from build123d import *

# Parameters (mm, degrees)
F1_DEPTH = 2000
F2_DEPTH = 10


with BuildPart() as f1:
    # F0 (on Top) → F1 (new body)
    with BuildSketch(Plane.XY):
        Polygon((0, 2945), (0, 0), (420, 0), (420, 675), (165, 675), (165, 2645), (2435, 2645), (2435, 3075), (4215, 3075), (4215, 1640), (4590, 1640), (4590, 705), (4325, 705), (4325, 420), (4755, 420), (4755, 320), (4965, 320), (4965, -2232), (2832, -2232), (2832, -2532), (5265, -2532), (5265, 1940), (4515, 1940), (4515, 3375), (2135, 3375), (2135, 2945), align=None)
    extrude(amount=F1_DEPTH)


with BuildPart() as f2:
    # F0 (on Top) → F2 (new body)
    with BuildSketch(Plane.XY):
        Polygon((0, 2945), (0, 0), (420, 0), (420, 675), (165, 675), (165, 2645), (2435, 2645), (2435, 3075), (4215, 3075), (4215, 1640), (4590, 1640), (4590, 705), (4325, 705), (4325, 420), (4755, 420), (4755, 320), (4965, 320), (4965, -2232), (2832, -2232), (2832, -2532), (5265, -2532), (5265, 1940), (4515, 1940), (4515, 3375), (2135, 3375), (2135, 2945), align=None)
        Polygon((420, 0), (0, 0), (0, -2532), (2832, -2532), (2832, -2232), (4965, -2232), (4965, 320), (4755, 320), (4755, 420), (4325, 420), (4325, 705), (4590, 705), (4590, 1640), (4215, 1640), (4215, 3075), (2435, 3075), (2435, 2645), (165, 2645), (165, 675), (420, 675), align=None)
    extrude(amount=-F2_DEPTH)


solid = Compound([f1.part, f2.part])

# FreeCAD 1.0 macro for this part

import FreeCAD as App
import Part
import Sketcher
from FreeCAD import Vector
Q = App.Units.Quantity


def add_polygon(sketch, points):
    """Adds a closed chain of lines whose ends are joined by coincident constraints."""
    first, n = sketch.GeometryCount, len(points)
    for a, b in zip(points, points[1:] + points[:1]):
        sketch.addGeometry(Part.LineSegment(App.Vector(*a, 0), App.Vector(*b, 0)), False)
    for i in range(n):
        sketch.addConstraint(Sketcher.Constraint("Coincident", first + i, 2, first + (i + 1) % n, 1))

doc = App.newDocument("Part")
params = doc.addObject("Spreadsheet::Sheet", "Params")
for row, (alias, value) in enumerate([
    ("sketch1_width", "420 mm"),
    ("sketch1_width2", "255 mm"),
    ("sketch1_width3", "2270 mm"),
    ("sketch1_width4", "1780 mm"),
    ("sketch1_width5", "375 mm"),
    ("pad1_length", "2000 mm"),
    ("sketch2_width", "5265 mm"),
    ("sketch2_width2", "750 mm"),
    ("sketch2_width3", "2380 mm"),
    ("sketch2_height", "5477 mm"),
    ("sketch2_height2", "4472 mm"),
    ("pad2_length", "10 mm"),
], start=1):
    params.set(f"A{row}", alias)
    params.set(f"B{row}", "=" + value)
    params.setAlias(f"B{row}", alias)

body = doc.addObject("PartDesign::Body", "Body")

# Sketch on XY plane
sketch1 = body.newObject("Sketcher::SketchObject", "Sketch")
sketch1.AttachmentSupport = (doc.getObject("XY_Plane"), [""])
sketch1.MapMode = "FlatFace"
add_polygon(sketch1, [(0, 2945), (0, 0), (420, 0), (420, 675), (165, 675), (165, 2645), (2435, 2645), (2435, 3075), (4215, 3075), (4215, 1640), (4590, 1640), (4590, 705), (4325, 705), (4325, 420), (4755, 420), (4755, 320), (4965, 320), (4965, -2232), (2832, -2232), (2832, -2532), (5265, -2532), (5265, 1940), (4515, 1940), (4515, 3375), (2135, 3375), (2135, 2945)])  # lines 0-25
sketch1.addConstraint(Sketcher.Constraint("Vertical", 0))
sketch1.addConstraint(Sketcher.Constraint("Horizontal", 1))
sketch1.addConstraint(Sketcher.Constraint("Vertical", 2))
sketch1.addConstraint(Sketcher.Constraint("Horizontal", 3))
sketch1.addConstraint(Sketcher.Constraint("Vertical", 4))
sketch1.addConstraint(Sketcher.Constraint("Horizontal", 5))
sketch1.addConstraint(Sketcher.Constraint("Vertical", 6))
sketch1.addConstraint(Sketcher.Constraint("Horizontal", 7))
sketch1.addConstraint(Sketcher.Constraint("Vertical", 8))
sketch1.addConstraint(Sketcher.Constraint("Horizontal", 9))
sketch1.addConstraint(Sketcher.Constraint("Vertical", 10))
sketch1.addConstraint(Sketcher.Constraint("Horizontal", 11))
sketch1.addConstraint(Sketcher.Constraint("Vertical", 12))
sketch1.addConstraint(Sketcher.Constraint("Horizontal", 13))
sketch1.addConstraint(Sketcher.Constraint("Vertical", 14))
sketch1.addConstraint(Sketcher.Constraint("Horizontal", 15))
sketch1.addConstraint(Sketcher.Constraint("Vertical", 16))
sketch1.addConstraint(Sketcher.Constraint("Horizontal", 17))
sketch1.addConstraint(Sketcher.Constraint("Vertical", 18))
sketch1.addConstraint(Sketcher.Constraint("Horizontal", 19))
sketch1.addConstraint(Sketcher.Constraint("Vertical", 20))
sketch1.addConstraint(Sketcher.Constraint("Horizontal", 21))
sketch1.addConstraint(Sketcher.Constraint("Vertical", 22))
sketch1.addConstraint(Sketcher.Constraint("Horizontal", 23))
sketch1.addConstraint(Sketcher.Constraint("Vertical", 24))
sketch1.addConstraint(Sketcher.Constraint("Horizontal", 25))
sketch1.addConstraint(Sketcher.Constraint("Coincident", 0, 2, -1, 1))
sketch1.addConstraint(Sketcher.Constraint("Equal", 13, 6))
sketch1.addConstraint(Sketcher.Constraint("Equal", 8, 22))
sketch1.addConstraint(Sketcher.Constraint("Equal", 6, 24))
sketch1.addConstraint(Sketcher.Constraint("DistanceX", 1, 1, 1, 2, Q("420 mm")))
sketch1.addConstraint(Sketcher.Constraint("DistanceX", 3, 2, 3, 1, Q("255 mm")))
sketch1.addConstraint(Sketcher.Constraint("DistanceX", 5, 1, 5, 2, Q("2270 mm")))
sketch1.addConstraint(Sketcher.Constraint("DistanceX", 7, 1, 7, 2, Q("1780 mm")))
sketch1.addConstraint(Sketcher.Constraint("DistanceX", 9, 1, 9, 2, Q("375 mm")))
sketch1.addConstraint(Sketcher.Constraint("DistanceX", 11, 2, 11, 1, Q("265 mm")))
sketch1.addConstraint(Sketcher.Constraint("DistanceX", 13, 1, 13, 2, Q("430 mm")))
sketch1.addConstraint(Sketcher.Constraint("DistanceX", 15, 1, 15, 2, Q("210 mm")))
sketch1.addConstraint(Sketcher.Constraint("DistanceX", 17, 2, 17, 1, Q("2133 mm")))
sketch1.addConstraint(Sketcher.Constraint("DistanceX", 19, 1, 19, 2, Q("2433 mm")))
sketch1.addConstraint(Sketcher.Constraint("DistanceX", 21, 2, 21, 1, Q("750 mm")))
sketch1.addConstraint(Sketcher.Constraint("DistanceX", 23, 2, 23, 1, Q("2380 mm")))
sketch1.addConstraint(Sketcher.Constraint("DistanceY", 0, 2, 0, 1, Q("2945 mm")))
sketch1.addConstraint(Sketcher.Constraint("DistanceY", 2, 1, 2, 2, Q("675 mm")))
sketch1.addConstraint(Sketcher.Constraint("DistanceY", 4, 1, 4, 2, Q("1970 mm")))
sketch1.addConstraint(Sketcher.Constraint("DistanceY", 8, 2, 8, 1, Q("1435 mm")))
sketch1.addConstraint(Sketcher.Constraint("DistanceY", 10, 2, 10, 1, Q("935 mm")))
sketch1.addConstraint(Sketcher.Constraint("DistanceY", 12, 2, 12, 1, Q("285 mm")))
sketch1.addConstraint(Sketcher.Constraint("DistanceY", 14, 2, 14, 1, Q("100 mm")))
sketch1.addConstraint(Sketcher.Constraint("DistanceY", 16, 2, 16, 1, Q("2552 mm")))
sketch1.addConstraint(Sketcher.Constraint("DistanceY", 18, 2, 18, 1, Q("300 mm")))
sketch1.setExpression("Constraints[56]", "Params.sketch1_width")
sketch1.setExpression("Constraints[57]", "Params.sketch1_width2")
sketch1.setExpression("Constraints[58]", "Params.sketch1_width3")
sketch1.setExpression("Constraints[59]", "Params.sketch1_width4")
sketch1.setExpression("Constraints[60]", "Params.sketch1_width5")
pad1 = body.newObject("PartDesign::Pad", "Pad")
pad1.Profile = sketch1
pad1.setExpression("Length", "Params.pad1_length")
body2 = doc.addObject("PartDesign::Body", "Body001")

# Sketch on XY plane
sketch2 = body2.newObject("Sketcher::SketchObject", "Sketch001")
sketch2.AttachmentSupport = (doc.getObject("XY_Plane001"), [""])
sketch2.MapMode = "FlatFace"
add_polygon(sketch2, [(0, 2945), (0, -2532), (5265, -2532), (5265, 1940), (4515, 1940), (4515, 3375), (2135, 3375), (2135, 2945)])  # lines 0-7
sketch2.addConstraint(Sketcher.Constraint("Vertical", 0))
sketch2.addConstraint(Sketcher.Constraint("Horizontal", 1))
sketch2.addConstraint(Sketcher.Constraint("Vertical", 2))
sketch2.addConstraint(Sketcher.Constraint("Horizontal", 3))
sketch2.addConstraint(Sketcher.Constraint("Vertical", 4))
sketch2.addConstraint(Sketcher.Constraint("Horizontal", 5))
sketch2.addConstraint(Sketcher.Constraint("Vertical", 6))
sketch2.addConstraint(Sketcher.Constraint("Horizontal", 7))
sketch2.addConstraint(Sketcher.Constraint("PointOnObject", 0, 2, -2))
sketch2.addConstraint(Sketcher.Constraint("DistanceX", 1, 1, 1, 2, Q("5265 mm")))
sketch2.addConstraint(Sketcher.Constraint("DistanceX", 3, 2, 3, 1, Q("750 mm")))
sketch2.addConstraint(Sketcher.Constraint("DistanceX", 5, 2, 5, 1, Q("2380 mm")))
sketch2.addConstraint(Sketcher.Constraint("DistanceY", 0, 2, 0, 1, Q("5477 mm")))
sketch2.addConstraint(Sketcher.Constraint("DistanceY", 2, 1, 2, 2, Q("4472 mm")))
sketch2.addConstraint(Sketcher.Constraint("DistanceY", 4, 1, 4, 2, Q("1435 mm")))
sketch2.addConstraint(Sketcher.Constraint("DistanceY", 0, 2, -1, 1, Q("2532 mm")))
sketch2.setExpression("Constraints[17]", "Params.sketch2_width")
sketch2.setExpression("Constraints[18]", "Params.sketch2_width2")
sketch2.setExpression("Constraints[19]", "Params.sketch2_width3")
sketch2.setExpression("Constraints[20]", "Params.sketch2_height")
sketch2.setExpression("Constraints[21]", "Params.sketch2_height2")
pad2 = body2.newObject("PartDesign::Pad", "Pad001")
pad2.Profile = sketch2
pad2.setExpression("Length", "Params.pad2_length")
pad2.Reversed = True

doc.recompute()
